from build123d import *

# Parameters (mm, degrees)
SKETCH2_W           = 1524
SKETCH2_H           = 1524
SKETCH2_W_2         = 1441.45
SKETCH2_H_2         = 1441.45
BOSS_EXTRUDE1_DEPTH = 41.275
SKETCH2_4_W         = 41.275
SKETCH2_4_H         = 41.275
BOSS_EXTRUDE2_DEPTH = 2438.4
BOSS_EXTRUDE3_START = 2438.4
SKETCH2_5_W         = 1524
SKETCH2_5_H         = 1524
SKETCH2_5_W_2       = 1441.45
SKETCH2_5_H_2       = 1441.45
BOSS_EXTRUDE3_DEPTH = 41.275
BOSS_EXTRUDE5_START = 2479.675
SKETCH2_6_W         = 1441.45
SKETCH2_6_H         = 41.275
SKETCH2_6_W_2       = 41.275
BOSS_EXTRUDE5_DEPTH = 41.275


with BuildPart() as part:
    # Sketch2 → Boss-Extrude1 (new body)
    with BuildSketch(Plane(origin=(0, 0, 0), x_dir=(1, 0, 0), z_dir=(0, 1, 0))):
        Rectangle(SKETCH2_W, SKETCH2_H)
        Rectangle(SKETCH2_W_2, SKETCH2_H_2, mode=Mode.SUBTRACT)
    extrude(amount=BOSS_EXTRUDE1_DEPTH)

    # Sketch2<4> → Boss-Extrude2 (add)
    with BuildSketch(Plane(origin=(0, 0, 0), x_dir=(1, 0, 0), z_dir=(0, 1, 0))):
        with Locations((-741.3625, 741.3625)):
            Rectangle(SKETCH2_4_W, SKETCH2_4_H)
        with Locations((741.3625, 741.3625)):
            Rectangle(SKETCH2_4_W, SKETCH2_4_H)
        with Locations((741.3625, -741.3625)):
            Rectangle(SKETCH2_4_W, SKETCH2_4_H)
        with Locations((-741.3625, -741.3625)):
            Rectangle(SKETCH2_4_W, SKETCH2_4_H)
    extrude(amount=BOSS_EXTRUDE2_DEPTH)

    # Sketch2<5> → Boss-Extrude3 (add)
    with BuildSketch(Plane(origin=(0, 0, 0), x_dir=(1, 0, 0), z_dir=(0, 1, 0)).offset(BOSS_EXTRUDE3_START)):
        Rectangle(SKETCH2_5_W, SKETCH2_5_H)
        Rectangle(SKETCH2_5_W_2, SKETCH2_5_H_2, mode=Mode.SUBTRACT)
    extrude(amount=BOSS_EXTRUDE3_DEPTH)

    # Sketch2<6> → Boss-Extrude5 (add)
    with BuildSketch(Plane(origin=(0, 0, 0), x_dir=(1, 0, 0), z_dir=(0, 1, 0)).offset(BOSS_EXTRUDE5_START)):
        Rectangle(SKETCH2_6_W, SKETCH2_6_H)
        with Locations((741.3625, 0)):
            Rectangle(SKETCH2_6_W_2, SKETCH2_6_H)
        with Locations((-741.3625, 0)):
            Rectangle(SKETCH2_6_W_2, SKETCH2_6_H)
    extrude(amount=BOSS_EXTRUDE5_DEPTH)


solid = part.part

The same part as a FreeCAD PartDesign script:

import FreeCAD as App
import Part
import Sketcher
Q = App.Units.Quantity

doc = App.newDocument("Part")
body = doc.addObject("PartDesign::Body", "Body")

# Sketch on XZ plane
sketch1 = body.newObject("Sketcher::SketchObject", "Sketch")
sketch1.AttachmentSupport = (doc.getObject("XZ_Plane"), [""])
sketch1.MapMode = "FlatFace"
sketch1.addGeometry([
    Part.LineSegment(App.Vector(-762, -762, 0), App.Vector(-762, 762, 0)),  # 0
    Part.LineSegment(App.Vector(-762, 762, 0), App.Vector(762, 762, 0)),  # 1
    Part.LineSegment(App.Vector(762, 762, 0), App.Vector(762, -762, 0)),  # 2
    Part.LineSegment(App.Vector(762, -762, 0), App.Vector(-762, -762, 0)),  # 3
    Part.LineSegment(App.Vector(721, 721, 0), App.Vector(-721, 721, 0)),  # 4
    Part.LineSegment(App.Vector(-721, 721, 0), App.Vector(-721, -721, 0)),  # 5
    Part.LineSegment(App.Vector(-721, -721, 0), App.Vector(721, -721, 0)),  # 6
    Part.LineSegment(App.Vector(721, -721, 0), App.Vector(721, 721, 0)),  # 7
], False)
sketch1.addConstraint([
    Sketcher.Constraint("Coincident", 0, 2, 1, 1),
    Sketcher.Constraint("Coincident", 1, 2, 2, 1),
    Sketcher.Constraint("Coincident", 2, 2, 3, 1),
    Sketcher.Constraint("Coincident", 3, 2, 0, 1),
    Sketcher.Constraint("Coincident", 4, 2, 5, 1),
    Sketcher.Constraint("Coincident", 5, 2, 6, 1),
    Sketcher.Constraint("Coincident", 6, 2, 7, 1),
    Sketcher.Constraint("Coincident", 7, 2, 4, 1),
    Sketcher.Constraint("Vertical", 0),
    Sketcher.Constraint("Horizontal", 1),
    Sketcher.Constraint("Vertical", 2),
    Sketcher.Constraint("Horizontal", 3),
    Sketcher.Constraint("Horizontal", 4),
    Sketcher.Constraint("Vertical", 5),
    Sketcher.Constraint("Horizontal", 6),
    Sketcher.Constraint("Vertical", 7),
    Sketcher.Constraint("Symmetric", 0, 2, 2, 2, -1, 1),
    Sketcher.Constraint("Symmetric", 4, 2, 6, 2, -1, 1),
    Sketcher.Constraint("Equal", 3, 0),
    Sketcher.Constraint("Equal", 6, 5),
    Sketcher.Constraint("DistanceX", 1, 1, 1, 2, Q("60 in")),
    Sketcher.Constraint("DistanceX", 4, 2, 4, 1, Q("56.75 in")),
])
pad1 = body.newObject("PartDesign::Pad", "Pad")
pad1.Profile = sketch1
pad1.Length = Q("1.625 in")
pad1.Reversed = True

# Sketch on XZ plane
sketch2 = body.newObject("Sketcher::SketchObject", "Sketch001")
sketch2.AttachmentSupport = (doc.getObject("XZ_Plane"), [""])
sketch2.MapMode = "FlatFace"
sketch2.addGeometry([
    Part.LineSegment(App.Vector(-762, -762, 0), App.Vector(-762, -721, 0)),  # 0
    Part.LineSegment(App.Vector(-762, -721, 0), App.Vector(-721, -721, 0)),  # 1
    Part.LineSegment(App.Vector(-721, -721, 0), App.Vector(-721, -762, 0)),  # 2
    Part.LineSegment(App.Vector(-721, -762, 0), App.Vector(-762, -762, 0)),  # 3
    Part.LineSegment(App.Vector(721, -762, 0), App.Vector(721, -721, 0)),  # 4
    Part.LineSegment(App.Vector(721, -721, 0), App.Vector(762, -721, 0)),  # 5
    Part.LineSegment(App.Vector(762, -721, 0), App.Vector(762, -762, 0)),  # 6
    Part.LineSegment(App.Vector(762, -762, 0), App.Vector(721, -762, 0)),  # 7
    Part.LineSegment(App.Vector(721, 721, 0), App.Vector(721, 762, 0)),  # 8
    Part.LineSegment(App.Vector(721, 762, 0), App.Vector(762, 762, 0)),  # 9
    Part.LineSegment(App.Vector(762, 762, 0), App.Vector(762, 721, 0)),  # 10
    Part.LineSegment(App.Vector(762, 721, 0), App.Vector(721, 721, 0)),  # 11
    Part.LineSegment(App.Vector(-762, 721, 0), App.Vector(-762, 762, 0)),  # 12
    Part.LineSegment(App.Vector(-762, 762, 0), App.Vector(-721, 762, 0)),  # 13
    Part.LineSegment(App.Vector(-721, 762, 0), App.Vector(-721, 721, 0)),  # 14
    Part.LineSegment(App.Vector(-721, 721, 0), App.Vector(-762, 721, 0)),  # 15
], False)
sketch2.addConstraint([
    Sketcher.Constraint("Coincident", 0, 2, 1, 1),
    Sketcher.Constraint("Coincident", 1, 2, 2, 1),
    Sketcher.Constraint("Coincident", 2, 2, 3, 1),
    Sketcher.Constraint("Coincident", 3, 2, 0, 1),
    Sketcher.Constraint("Coincident", 4, 2, 5, 1),
    Sketcher.Constraint("Coincident", 5, 2, 6, 1),
    Sketcher.Constraint("Coincident", 6, 2, 7, 1),
    Sketcher.Constraint("Coincident", 7, 2, 4, 1),
    Sketcher.Constraint("Coincident", 8, 2, 9, 1),
    Sketcher.Constraint("Coincident", 9, 2, 10, 1),
    Sketcher.Constraint("Coincident", 10, 2, 11, 1),
    Sketcher.Constraint("Coincident", 11, 2, 8, 1),
    Sketcher.Constraint("Coincident", 12, 2, 13, 1),
    Sketcher.Constraint("Coincident", 13, 2, 14, 1),
    Sketcher.Constraint("Coincident", 14, 2, 15, 1),
    Sketcher.Constraint("Coincident", 15, 2, 12, 1),
    Sketcher.Constraint("Vertical", 0),
    Sketcher.Constraint("Horizontal", 1),
    Sketcher.Constraint("Vertical", 2),
    Sketcher.Constraint("Horizontal", 3),
    Sketcher.Constraint("Vertical", 4),
    Sketcher.Constraint("Horizontal", 5),
    Sketcher.Constraint("Vertical", 6),
    Sketcher.Constraint("Horizontal", 7),
    Sketcher.Constraint("Vertical", 8),
    Sketcher.Constraint("Horizontal", 9),
    Sketcher.Constraint("Vertical", 10),
    Sketcher.Constraint("Horizontal", 11),
    Sketcher.Constraint("Vertical", 12),
    Sketcher.Constraint("Horizontal", 13),
    Sketcher.Constraint("Vertical", 14),
    Sketcher.Constraint("Horizontal", 15),
    Sketcher.Constraint("Symmetric", 2, 2, 8, 2, -1, 1),
    Sketcher.Constraint("Symmetric", 0, 2, 10, 2, -1, 1),
    Sketcher.Constraint("Symmetric", 6, 2, 12, 2, -1, 1),
    Sketcher.Constraint("Symmetric", 4, 2, 14, 2, -1, 1),
    Sketcher.Constraint("Symmetric", 1, 2, 4, 2, -2),
    Sketcher.Constraint("Symmetric", 3, 2, 6, 2, -2),
    Sketcher.Constraint("Equal", 15, 0),
    Sketcher.Constraint("DistanceX", 0, 2, -1, 1, Q("30 in")),
    Sketcher.Constraint("DistanceY", 2, 2, -1, 1, Q("30 in")),
    Sketcher.Constraint("DistanceX", 1, 1, 1, 2, Q("1.625 in")),
])
pad2 = body.newObject("PartDesign::Pad", "Pad001")
pad2.Profile = sketch2
pad2.Length = Q("96 in")
pad2.Reversed = True

# Sketch on XZ plane
sketch3 = body.newObject("Sketcher::SketchObject", "Sketch002")
sketch3.AttachmentSupport = (doc.getObject("XZ_Plane"), [""])
sketch3.MapMode = "FlatFace"
sketch3.AttachmentOffset = App.Placement(App.Vector(0, 0, -96 * 25.4), App.Rotation())
sketch3.addGeometry([
    Part.LineSegment(App.Vector(-762, -762, 0), App.Vector(-762, 762, 0)),  # 0
    Part.LineSegment(App.Vector(-762, 762, 0), App.Vector(762, 762, 0)),  # 1
    Part.LineSegment(App.Vector(762, 762, 0), App.Vector(762, -762, 0)),  # 2
    Part.LineSegment(App.Vector(762, -762, 0), App.Vector(-762, -762, 0)),  # 3
    Part.LineSegment(App.Vector(721, 721, 0), App.Vector(-721, 721, 0)),  # 4
    Part.LineSegment(App.Vector(-721, 721, 0), App.Vector(-721, -721, 0)),  # 5
    Part.LineSegment(App.Vector(-721, -721, 0), App.Vector(721, -721, 0)),  # 6
    Part.LineSegment(App.Vector(721, -721, 0), App.Vector(721, 721, 0)),  # 7
], False)
sketch3.addConstraint([
    Sketcher.Constraint("Coincident", 0, 2, 1, 1),
    Sketcher.Constraint("Coincident", 1, 2, 2, 1),
    Sketcher.Constraint("Coincident", 2, 2, 3, 1),
    Sketcher.Constraint("Coincident", 3, 2, 0, 1),
    Sketcher.Constraint("Coincident", 4, 2, 5, 1),
    Sketcher.Constraint("Coincident", 5, 2, 6, 1),
    Sketcher.Constraint("Coincident", 6, 2, 7, 1),
    Sketcher.Constraint("Coincident", 7, 2, 4, 1),
    Sketcher.Constraint("Vertical", 0),
    Sketcher.Constraint("Horizontal", 1),
    Sketcher.Constraint("Vertical", 2),
    Sketcher.Constraint("Horizontal", 3),
    Sketcher.Constraint("Horizontal", 4),
    Sketcher.Constraint("Vertical", 5),
    Sketcher.Constraint("Horizontal", 6),
    Sketcher.Constraint("Vertical", 7),
    Sketcher.Constraint("Symmetric", 0, 2, 2, 2, -1, 1),
    Sketcher.Constraint("Symmetric", 4, 2, 6, 2, -1, 1),
    Sketcher.Constraint("Equal", 3, 0),
    Sketcher.Constraint("Equal", 6, 5),
    Sketcher.Constraint("DistanceX", 1, 1, 1, 2, Q("60 in")),
    Sketcher.Constraint("DistanceX", 4, 2, 4, 1, Q("56.75 in")),
])
pad3 = body.newObject("PartDesign::Pad", "Pad002")
pad3.Profile = sketch3
pad3.Length = Q("1.625 in")
pad3.Reversed = True

# Sketch on XZ plane
sketch4 = body.newObject("Sketcher::SketchObject", "Sketch003")
sketch4.AttachmentSupport = (doc.getObject("XZ_Plane"), [""])
sketch4.MapMode = "FlatFace"
sketch4.AttachmentOffset = App.Placement(App.Vector(0, 0, -97.625 * 25.4), App.Rotation())
sketch4.addGeometry([
    Part.LineSegment(App.Vector(762, 21, 0), App.Vector(762, -21, 0)),
    Part.LineSegment(App.Vector(762, -21, 0), App.Vector(-762, -21, 0)),
    Part.LineSegment(App.Vector(-762, -21, 0), App.Vector(-762, 21, 0)),
    Part.LineSegment(App.Vector(-762, 21, 0), App.Vector(762, 21, 0)),
], False)
sketch4.addConstraint([
    Sketcher.Constraint("Coincident", 0, 2, 1, 1),
    Sketcher.Constraint("Coincident", 1, 2, 2, 1),
    Sketcher.Constraint("Coincident", 2, 2, 3, 1),
    Sketcher.Constraint("Coincident", 3, 2, 0, 1),
    Sketcher.Constraint("Vertical", 0),
    Sketcher.Constraint("Horizontal", 1),
    Sketcher.Constraint("Vertical", 2),
    Sketcher.Constraint("Horizontal", 3),
    Sketcher.Constraint("Symmetric", 0, 2, 2, 2, -1, 1),
    Sketcher.Constraint("DistanceX", 1, 2, 1, 1, Q("60 in")),
    Sketcher.Constraint("DistanceY", 0, 2, 0, 1, Q("1.625 in")),
])
pad4 = body.newObject("PartDesign::Pad", "Pad003")
pad4.Profile = sketch4
pad4.Length = Q("1.625 in")
pad4.Reversed = True

doc.recompute()
